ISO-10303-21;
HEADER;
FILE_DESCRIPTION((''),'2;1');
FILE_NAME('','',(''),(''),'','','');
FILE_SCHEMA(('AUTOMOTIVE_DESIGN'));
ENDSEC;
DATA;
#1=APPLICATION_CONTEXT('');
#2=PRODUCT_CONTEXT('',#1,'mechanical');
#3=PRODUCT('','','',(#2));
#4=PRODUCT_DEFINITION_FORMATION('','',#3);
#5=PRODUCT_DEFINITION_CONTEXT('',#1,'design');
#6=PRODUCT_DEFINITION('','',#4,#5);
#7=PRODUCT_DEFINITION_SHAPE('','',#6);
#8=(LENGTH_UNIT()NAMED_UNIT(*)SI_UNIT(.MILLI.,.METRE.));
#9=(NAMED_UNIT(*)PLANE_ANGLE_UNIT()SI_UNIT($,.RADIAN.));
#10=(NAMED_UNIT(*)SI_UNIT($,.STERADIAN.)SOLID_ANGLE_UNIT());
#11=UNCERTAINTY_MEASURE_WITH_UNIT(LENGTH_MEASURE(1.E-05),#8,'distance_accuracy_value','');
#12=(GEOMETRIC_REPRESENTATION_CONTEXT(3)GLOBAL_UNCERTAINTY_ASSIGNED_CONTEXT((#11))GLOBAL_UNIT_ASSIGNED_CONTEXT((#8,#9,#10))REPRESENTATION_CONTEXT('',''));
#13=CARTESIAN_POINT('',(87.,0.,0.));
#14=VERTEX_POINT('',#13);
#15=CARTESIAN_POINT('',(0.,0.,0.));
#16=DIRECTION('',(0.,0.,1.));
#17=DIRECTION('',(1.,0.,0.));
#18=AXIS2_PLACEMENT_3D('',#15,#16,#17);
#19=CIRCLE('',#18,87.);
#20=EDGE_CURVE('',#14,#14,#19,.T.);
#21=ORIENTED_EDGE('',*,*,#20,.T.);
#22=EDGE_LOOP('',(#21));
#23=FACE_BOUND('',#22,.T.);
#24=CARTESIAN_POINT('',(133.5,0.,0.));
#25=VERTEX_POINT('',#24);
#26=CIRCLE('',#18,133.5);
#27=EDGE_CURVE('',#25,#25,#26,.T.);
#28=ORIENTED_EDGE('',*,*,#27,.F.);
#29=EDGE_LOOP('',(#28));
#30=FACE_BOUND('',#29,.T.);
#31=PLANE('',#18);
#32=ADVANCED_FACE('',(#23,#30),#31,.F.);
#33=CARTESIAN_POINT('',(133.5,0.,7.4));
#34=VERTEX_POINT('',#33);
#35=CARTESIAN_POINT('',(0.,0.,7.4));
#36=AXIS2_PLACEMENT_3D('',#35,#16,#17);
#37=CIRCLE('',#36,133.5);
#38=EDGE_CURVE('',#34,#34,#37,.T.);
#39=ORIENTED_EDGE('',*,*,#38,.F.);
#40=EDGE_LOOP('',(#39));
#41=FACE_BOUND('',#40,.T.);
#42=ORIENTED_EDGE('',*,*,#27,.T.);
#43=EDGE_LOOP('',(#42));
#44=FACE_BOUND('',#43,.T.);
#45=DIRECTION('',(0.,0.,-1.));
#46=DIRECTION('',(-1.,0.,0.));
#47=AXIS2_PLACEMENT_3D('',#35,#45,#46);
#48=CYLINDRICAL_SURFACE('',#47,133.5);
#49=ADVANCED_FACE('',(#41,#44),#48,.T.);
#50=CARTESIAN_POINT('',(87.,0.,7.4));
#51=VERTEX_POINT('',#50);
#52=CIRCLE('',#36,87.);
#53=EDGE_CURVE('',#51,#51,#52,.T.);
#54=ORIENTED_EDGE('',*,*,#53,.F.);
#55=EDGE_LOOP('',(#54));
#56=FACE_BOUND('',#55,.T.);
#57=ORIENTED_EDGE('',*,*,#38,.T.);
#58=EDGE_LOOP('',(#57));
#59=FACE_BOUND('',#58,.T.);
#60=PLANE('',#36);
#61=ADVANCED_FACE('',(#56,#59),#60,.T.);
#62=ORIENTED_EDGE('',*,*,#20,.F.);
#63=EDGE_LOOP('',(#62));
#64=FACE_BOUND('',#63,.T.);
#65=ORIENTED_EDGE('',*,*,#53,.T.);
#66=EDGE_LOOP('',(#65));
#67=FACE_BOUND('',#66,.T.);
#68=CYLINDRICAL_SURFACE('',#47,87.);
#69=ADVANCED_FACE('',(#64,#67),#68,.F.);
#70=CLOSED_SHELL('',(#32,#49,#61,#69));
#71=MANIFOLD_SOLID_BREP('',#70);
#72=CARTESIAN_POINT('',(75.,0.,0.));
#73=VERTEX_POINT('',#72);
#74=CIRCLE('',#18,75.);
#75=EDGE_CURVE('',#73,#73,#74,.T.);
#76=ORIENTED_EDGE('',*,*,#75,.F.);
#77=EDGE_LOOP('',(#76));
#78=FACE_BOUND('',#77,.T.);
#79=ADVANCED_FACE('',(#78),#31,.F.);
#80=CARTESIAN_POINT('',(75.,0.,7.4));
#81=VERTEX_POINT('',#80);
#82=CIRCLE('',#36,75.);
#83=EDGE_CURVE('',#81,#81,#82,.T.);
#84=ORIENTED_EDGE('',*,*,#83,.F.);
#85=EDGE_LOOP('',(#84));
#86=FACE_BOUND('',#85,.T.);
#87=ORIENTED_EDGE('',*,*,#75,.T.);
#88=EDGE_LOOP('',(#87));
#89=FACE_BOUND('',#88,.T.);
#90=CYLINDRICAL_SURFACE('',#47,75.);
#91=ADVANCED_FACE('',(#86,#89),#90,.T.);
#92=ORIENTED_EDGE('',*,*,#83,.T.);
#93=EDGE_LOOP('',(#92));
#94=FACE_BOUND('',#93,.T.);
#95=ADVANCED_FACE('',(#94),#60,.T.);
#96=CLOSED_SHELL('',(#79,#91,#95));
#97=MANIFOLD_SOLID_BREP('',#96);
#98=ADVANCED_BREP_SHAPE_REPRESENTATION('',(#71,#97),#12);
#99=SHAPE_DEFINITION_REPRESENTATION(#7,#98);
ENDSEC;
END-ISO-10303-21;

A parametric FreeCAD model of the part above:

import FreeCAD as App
import Part
import Sketcher

doc = App.newDocument("Part")
body = doc.addObject("PartDesign::Body", "Body")

# Sketch on XY plane
sketch1 = body.newObject("Sketcher::SketchObject", "Sketch")
sketch1.AttachmentSupport = (doc.getObject("XY_Plane"), [""])
sketch1.MapMode = "FlatFace"
sketch1.addGeometry(Part.Circle(App.Vector(0, 0, 0), App.Vector(0, 0, 1), 75), False)
sketch1.addConstraint(Sketcher.Constraint("Coincident", 0, 3, -1, 1))
sketch1.addConstraint(Sketcher.Constraint("Diameter", 0, 150.0))
pad1 = body.newObject("PartDesign::Pad", "Pad")
pad1.Profile = sketch1
pad1.Length = 7.4
body2 = doc.addObject("PartDesign::Body", "Body001")

# Sketch on XY plane
sketch2 = body2.newObject("Sketcher::SketchObject", "Sketch001")
sketch2.AttachmentSupport = (doc.getObject("XY_Plane001"), [""])
sketch2.MapMode = "FlatFace"
sketch2.addGeometry(Part.Circle(App.Vector(0, 0, 0), App.Vector(0, 0, 1), 134), False)
sketch2.addGeometry(Part.Circle(App.Vector(0, 0, 0), App.Vector(0, 0, 1), 87), False)
sketch2.addConstraint(Sketcher.Constraint("Coincident", 0, 3, -1, 1))
sketch2.addConstraint(Sketcher.Constraint("Coincident", 1, 3, -1, 1))
sketch2.addConstraint(Sketcher.Constraint("Diameter", 0, 267.0))
sketch2.addConstraint(Sketcher.Constraint("Diameter", 1, 174.0))
pad2 = body2.newObject("PartDesign::Pad", "Pad001")
pad2.Profile = sketch2
pad2.Length = 7.4

doc.recompute()
